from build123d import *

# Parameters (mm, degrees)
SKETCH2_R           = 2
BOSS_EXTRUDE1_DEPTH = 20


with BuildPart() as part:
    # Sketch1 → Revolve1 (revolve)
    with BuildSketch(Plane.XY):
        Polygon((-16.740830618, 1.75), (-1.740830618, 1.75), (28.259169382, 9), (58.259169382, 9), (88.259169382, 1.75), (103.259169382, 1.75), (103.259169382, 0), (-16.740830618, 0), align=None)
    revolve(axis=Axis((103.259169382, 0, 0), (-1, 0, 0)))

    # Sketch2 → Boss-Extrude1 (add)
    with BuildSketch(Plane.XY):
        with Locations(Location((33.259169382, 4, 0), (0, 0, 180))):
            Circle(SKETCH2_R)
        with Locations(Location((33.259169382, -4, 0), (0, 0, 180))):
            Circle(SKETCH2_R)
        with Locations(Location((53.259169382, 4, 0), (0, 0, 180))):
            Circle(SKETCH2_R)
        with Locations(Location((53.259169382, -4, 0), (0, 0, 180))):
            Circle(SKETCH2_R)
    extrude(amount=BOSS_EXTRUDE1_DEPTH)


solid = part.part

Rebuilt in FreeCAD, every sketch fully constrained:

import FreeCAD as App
import Part
import Sketcher

V = App.Vector
Q = App.Units.Quantity


def add_polygon(sketch, points):
    """Adds a closed chain of lines whose ends are joined by coincident constraints."""
    first, n = sketch.GeometryCount, len(points)
    for a, b in zip(points, points[1:] + points[:1]):
        sketch.addGeometry(Part.LineSegment(App.Vector(*a, 0), App.Vector(*b, 0)), False)
    for i in range(n):
        sketch.addConstraint(Sketcher.Constraint("Coincident", first + i, 2, first + (i + 1) % n, 1))

doc = App.newDocument("Part")
body = doc.addObject("PartDesign::Body", "Body")

# Sketch on XY plane
sketch1 = body.newObject("Sketcher::SketchObject", "Sketch")
sketch1.AttachmentSupport = (doc.getObject("XY_Plane"), [""])
sketch1.MapMode = "FlatFace"
add_polygon(sketch1, [(-1.7, 1.8), (-16.7, 1.8), (-16.7, 0), (103.3, 0), (103.3, 1.8), (88.3, 1.8), (58.3, 9), (28.3, 9)])  # lines 0-7
sketch1.addConstraint([
    Sketcher.Constraint("Horizontal", 0),
    Sketcher.Constraint("Vertical", 1),
    Sketcher.Constraint("Horizontal", 2),
    Sketcher.Constraint("Vertical", 3),
    Sketcher.Constraint("Horizontal", 4),
    Sketcher.Constraint("Horizontal", 6),
    Sketcher.Constraint("PointOnObject", 1, 2, -1),
    Sketcher.Constraint("Horizontal", 0, 2, 3, 2),
    Sketcher.Constraint("Equal", 0, 4),
    Sketcher.Constraint("Equal", 5, 7),
    Sketcher.Constraint("DistanceX", 0, 2, 0, 1, Q("15 mm")),
    Sketcher.Constraint("DistanceX", 2, 1, 2, 2, Q("120 mm")),
    Sketcher.Constraint("DistanceX", 6, 2, 6, 1, Q("30 mm")),
    Sketcher.Constraint("DistanceY", -1, 1, 5, 2, Q("9 mm")),
    Sketcher.Constraint("DistanceY", 1, 2, 1, 1, Q("1.75 mm")),
    Sketcher.Constraint("DistanceX", 0, 2, -1, 1, Q("16.740831 mm")),
])
revolution = body.newObject("PartDesign::Revolution", "Revolution")
revolution.Profile = sketch1
revolution.ReferenceAxis = (sketch1, ["H_Axis"])
revolution.Angle = 360

# Sketch on XY plane
sketch2 = body.newObject("Sketcher::SketchObject", "Sketch001")
sketch2.AttachmentSupport = (doc.getObject("XY_Plane"), [""])
sketch2.MapMode = "FlatFace"
sketch2.addGeometry([
    Part.Circle(V(33.3, 4, 0), V(0, 0, 1), 2),
    Part.Circle(V(33.3, -4, 0), V(0, 0, 1), 2),
    Part.Circle(V(53.3, 4, 0), V(0, 0, 1), 2),
    Part.Circle(V(53.3, -4, 0), V(0, 0, 1), 2),
], False)
sketch2.addConstraint([
    Sketcher.Constraint("Equal", 0, 1),
    Sketcher.Constraint("Equal", 1, 2),
    Sketcher.Constraint("Equal", 2, 3),
    Sketcher.Constraint("Symmetric", 0, 3, 1, 3, -1),
    Sketcher.Constraint("Symmetric", 2, 3, 3, 3, -1),
    Sketcher.Constraint("Horizontal", 0, 3, 2, 3),
    Sketcher.Constraint("Diameter", 0, Q("4 mm")),
    Sketcher.Constraint("DistanceY", -1, 1, 0, 3, Q("4 mm")),
    Sketcher.Constraint("DistanceX", 0, 3, 2, 3, Q("20 mm")),
    Sketcher.Constraint("DistanceX", -1, 1, 0, 3, Q("33.259169 mm")),
])
pad1 = body.newObject("PartDesign::Pad", "Pad")
pad1.Profile = sketch2
pad1.Length = 20

doc.recompute()
